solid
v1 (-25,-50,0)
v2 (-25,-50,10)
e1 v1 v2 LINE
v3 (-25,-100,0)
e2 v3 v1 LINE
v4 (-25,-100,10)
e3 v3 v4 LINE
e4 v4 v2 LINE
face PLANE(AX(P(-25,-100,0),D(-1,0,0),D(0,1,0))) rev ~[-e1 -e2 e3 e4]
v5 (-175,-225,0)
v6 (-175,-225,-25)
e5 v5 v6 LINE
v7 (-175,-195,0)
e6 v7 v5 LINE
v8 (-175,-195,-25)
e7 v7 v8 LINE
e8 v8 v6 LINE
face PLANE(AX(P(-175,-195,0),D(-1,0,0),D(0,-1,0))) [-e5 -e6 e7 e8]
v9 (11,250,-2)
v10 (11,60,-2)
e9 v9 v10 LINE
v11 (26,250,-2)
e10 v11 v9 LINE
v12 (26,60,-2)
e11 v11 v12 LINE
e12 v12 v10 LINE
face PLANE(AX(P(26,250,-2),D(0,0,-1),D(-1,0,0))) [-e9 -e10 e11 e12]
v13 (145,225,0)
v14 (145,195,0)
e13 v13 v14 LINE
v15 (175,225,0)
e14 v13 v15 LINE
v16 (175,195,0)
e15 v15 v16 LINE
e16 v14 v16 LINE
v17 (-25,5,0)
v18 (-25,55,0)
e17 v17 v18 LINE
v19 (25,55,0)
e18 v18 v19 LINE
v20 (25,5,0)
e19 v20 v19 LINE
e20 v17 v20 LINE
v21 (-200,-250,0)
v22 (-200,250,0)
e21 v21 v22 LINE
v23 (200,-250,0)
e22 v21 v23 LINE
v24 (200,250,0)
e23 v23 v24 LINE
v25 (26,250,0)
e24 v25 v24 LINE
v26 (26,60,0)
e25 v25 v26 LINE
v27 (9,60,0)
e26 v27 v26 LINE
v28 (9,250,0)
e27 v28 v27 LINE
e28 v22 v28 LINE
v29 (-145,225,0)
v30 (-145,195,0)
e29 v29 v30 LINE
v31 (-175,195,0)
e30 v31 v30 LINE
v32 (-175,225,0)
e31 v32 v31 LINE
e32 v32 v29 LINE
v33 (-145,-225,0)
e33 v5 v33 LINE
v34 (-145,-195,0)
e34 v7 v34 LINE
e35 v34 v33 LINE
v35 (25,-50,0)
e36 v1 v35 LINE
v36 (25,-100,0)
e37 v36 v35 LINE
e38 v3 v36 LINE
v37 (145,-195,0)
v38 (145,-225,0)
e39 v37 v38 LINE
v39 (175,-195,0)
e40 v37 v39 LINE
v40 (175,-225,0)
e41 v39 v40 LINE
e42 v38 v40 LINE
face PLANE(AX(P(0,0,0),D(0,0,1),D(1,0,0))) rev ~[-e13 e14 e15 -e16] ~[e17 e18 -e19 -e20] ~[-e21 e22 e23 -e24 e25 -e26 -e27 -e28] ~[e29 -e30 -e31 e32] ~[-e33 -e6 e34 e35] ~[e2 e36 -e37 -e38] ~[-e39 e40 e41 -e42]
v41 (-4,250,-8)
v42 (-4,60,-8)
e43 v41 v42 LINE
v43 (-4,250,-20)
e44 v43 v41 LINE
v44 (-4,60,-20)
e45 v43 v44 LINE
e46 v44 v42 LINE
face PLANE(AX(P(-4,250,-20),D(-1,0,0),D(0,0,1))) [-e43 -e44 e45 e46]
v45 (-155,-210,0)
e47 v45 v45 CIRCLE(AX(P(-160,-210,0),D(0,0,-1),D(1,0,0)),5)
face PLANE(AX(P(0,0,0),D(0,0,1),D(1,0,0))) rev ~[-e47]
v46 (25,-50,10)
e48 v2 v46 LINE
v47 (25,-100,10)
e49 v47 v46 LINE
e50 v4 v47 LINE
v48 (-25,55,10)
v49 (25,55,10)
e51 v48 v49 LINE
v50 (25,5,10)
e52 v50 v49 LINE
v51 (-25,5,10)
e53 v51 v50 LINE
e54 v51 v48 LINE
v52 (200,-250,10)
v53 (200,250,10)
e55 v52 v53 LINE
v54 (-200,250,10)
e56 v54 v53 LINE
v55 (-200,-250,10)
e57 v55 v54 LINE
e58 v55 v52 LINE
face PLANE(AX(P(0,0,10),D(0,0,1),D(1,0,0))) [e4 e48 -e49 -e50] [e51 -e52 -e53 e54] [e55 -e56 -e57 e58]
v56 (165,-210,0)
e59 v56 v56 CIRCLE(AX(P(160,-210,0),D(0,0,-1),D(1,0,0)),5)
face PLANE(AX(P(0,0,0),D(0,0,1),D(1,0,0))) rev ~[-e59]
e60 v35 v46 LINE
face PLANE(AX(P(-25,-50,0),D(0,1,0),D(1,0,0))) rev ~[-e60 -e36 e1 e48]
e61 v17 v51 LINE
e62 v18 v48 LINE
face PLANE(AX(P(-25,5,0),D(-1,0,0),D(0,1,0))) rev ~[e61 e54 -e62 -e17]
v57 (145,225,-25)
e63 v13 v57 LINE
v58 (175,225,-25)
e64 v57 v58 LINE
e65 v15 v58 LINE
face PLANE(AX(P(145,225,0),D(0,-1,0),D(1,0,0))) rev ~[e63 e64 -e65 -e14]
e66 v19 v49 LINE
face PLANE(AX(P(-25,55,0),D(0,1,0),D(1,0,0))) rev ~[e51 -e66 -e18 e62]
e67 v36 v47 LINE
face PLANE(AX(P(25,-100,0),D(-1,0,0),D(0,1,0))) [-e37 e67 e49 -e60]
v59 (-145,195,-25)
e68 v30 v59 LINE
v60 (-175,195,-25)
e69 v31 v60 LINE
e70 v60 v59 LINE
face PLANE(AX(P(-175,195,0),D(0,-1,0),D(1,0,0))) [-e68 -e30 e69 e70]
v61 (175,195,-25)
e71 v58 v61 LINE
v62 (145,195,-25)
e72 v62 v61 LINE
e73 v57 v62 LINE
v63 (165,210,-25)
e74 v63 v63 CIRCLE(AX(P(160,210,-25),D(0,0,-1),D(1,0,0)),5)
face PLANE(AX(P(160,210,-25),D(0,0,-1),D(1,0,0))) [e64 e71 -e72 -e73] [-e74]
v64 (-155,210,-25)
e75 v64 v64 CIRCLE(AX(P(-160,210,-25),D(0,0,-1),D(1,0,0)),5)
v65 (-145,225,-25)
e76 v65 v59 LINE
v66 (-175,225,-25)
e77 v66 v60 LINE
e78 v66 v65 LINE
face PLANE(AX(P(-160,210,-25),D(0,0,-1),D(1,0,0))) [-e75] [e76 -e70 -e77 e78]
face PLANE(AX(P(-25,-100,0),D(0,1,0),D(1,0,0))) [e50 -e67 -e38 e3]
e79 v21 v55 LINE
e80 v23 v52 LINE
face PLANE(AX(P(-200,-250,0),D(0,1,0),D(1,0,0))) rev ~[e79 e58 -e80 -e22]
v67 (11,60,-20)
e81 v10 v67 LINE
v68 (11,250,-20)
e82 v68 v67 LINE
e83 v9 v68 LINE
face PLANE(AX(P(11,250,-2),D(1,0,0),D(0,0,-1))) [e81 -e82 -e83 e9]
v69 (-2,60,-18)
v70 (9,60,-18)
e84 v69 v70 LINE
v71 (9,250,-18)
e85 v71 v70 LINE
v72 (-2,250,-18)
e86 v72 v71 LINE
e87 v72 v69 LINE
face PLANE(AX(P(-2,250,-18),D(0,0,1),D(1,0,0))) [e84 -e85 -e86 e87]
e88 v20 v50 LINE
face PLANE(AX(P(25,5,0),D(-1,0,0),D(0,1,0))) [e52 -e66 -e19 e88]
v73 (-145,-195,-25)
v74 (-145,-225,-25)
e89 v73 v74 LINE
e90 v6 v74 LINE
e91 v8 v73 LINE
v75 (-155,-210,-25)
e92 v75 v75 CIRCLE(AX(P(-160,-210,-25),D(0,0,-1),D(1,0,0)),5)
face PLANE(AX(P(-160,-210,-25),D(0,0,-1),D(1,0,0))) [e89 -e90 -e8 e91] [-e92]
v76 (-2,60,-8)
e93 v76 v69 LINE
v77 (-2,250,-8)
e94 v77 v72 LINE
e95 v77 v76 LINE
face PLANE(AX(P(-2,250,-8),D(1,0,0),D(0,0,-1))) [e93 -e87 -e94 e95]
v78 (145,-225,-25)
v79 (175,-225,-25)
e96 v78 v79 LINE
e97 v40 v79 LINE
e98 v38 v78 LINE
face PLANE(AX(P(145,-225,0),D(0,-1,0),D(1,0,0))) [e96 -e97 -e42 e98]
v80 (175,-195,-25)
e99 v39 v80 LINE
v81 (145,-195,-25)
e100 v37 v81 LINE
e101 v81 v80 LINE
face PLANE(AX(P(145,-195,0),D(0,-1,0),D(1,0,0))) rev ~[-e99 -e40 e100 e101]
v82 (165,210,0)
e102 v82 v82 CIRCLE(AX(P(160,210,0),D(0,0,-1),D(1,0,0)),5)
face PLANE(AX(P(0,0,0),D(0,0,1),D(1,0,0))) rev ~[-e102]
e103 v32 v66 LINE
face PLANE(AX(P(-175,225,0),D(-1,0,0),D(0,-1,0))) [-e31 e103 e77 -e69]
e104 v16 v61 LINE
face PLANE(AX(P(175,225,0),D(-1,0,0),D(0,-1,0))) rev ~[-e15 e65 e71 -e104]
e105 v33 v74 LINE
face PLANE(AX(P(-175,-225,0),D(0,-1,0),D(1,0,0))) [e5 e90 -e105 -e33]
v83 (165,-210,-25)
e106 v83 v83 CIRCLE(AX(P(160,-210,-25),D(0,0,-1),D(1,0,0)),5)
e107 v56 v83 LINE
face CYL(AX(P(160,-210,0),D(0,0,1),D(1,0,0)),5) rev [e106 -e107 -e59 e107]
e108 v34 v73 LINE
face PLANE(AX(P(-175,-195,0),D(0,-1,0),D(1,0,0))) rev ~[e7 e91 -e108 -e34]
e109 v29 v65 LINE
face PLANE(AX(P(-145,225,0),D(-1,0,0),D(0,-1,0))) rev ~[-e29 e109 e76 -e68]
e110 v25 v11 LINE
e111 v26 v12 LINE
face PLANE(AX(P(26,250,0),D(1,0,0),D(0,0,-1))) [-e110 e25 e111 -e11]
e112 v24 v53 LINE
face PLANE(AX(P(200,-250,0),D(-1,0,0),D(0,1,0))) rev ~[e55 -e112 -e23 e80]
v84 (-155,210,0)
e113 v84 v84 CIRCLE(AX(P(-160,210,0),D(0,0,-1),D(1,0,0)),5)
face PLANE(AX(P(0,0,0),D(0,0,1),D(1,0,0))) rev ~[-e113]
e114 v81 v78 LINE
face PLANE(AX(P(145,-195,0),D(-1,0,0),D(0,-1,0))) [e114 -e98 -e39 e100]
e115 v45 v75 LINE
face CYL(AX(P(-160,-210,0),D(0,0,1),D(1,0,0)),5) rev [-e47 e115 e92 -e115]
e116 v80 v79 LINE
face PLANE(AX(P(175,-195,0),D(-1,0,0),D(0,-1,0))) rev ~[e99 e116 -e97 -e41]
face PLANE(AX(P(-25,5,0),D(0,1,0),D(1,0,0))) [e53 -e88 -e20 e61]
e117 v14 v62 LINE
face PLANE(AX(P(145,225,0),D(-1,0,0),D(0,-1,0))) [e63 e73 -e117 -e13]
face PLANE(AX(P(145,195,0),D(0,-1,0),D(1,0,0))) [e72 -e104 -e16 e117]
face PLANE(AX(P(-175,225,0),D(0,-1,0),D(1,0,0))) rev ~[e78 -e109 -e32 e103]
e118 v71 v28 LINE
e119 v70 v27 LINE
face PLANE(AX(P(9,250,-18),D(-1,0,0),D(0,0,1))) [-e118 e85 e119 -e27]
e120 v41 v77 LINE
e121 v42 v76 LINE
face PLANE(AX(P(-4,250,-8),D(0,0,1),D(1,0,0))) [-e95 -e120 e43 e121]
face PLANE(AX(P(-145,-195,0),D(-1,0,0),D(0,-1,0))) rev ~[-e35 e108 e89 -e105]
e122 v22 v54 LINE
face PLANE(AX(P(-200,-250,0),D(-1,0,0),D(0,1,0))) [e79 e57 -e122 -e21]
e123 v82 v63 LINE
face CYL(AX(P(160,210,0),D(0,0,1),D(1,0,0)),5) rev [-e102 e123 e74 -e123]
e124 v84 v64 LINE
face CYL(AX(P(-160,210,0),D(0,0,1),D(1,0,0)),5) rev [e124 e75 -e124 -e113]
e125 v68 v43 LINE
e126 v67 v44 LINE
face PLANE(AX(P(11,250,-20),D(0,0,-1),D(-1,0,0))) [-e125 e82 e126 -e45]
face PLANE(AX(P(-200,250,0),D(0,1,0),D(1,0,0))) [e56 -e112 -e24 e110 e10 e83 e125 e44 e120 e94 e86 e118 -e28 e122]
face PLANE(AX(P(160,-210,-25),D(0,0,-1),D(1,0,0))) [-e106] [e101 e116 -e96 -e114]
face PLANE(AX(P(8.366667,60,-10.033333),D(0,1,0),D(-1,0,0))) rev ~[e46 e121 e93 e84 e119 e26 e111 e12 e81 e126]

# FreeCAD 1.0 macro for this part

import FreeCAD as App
import Part
import Sketcher
Q = App.Units.Quantity

doc = App.newDocument("Part")
params = doc.addObject("Spreadsheet::Sheet", "Params")
for row, (alias, value) in enumerate([
    ("sketch1_width", "400 mm"),
    ("sketch1_width2", "50 mm"),
    ("sketch1_height", "500 mm"),
    ("pad1_length", "10 mm"),
    ("sketch2_diameter", "10 mm"),
    ("sketch2_width", "30 mm"),
    ("pad2_length", "25 mm"),
    ("sketch3_width", "2 mm"),
    ("sketch3_width2", "11 mm"),
    ("sketch3_width3", "17 mm"),
    ("sketch3_height", "12 mm"),
    ("sketch3_height2", "18 mm"),
    ("pad3_length", "190 mm"),
], start=1):
    params.set(f"A{row}", alias)
    params.set(f"B{row}", "=" + value)
    params.setAlias(f"B{row}", alias)

body = doc.addObject("PartDesign::Body", "Body")

sketch1 = body.newObject("Sketcher::SketchObject", "Sketch")
sketch1.AttachmentSupport = (doc.getObject("XY_Plane"), [""])
sketch1.MapMode = "FlatFace"
sketch1.addGeometry([
    Part.LineSegment(App.Vector(-200, 250, 0), App.Vector(-200, -250, 0)),
    Part.LineSegment(App.Vector(-200, -250, 0), App.Vector(200, -250, 0)),
    Part.LineSegment(App.Vector(200, -250, 0), App.Vector(200, 250, 0)),
    Part.LineSegment(App.Vector(200, 250, 0), App.Vector(-200, 250, 0)),
    Part.LineSegment(App.Vector(25, -100, 0), App.Vector(-25, -100, 0)),
    Part.LineSegment(App.Vector(-25, -100, 0), App.Vector(-25, -50, 0)),
    Part.LineSegment(App.Vector(-25, -50, 0), App.Vector(25, -50, 0)),
    Part.LineSegment(App.Vector(25, -50, 0), App.Vector(25, -100, 0)),
    Part.LineSegment(App.Vector(25, 5, 0), App.Vector(-25, 5, 0)),
    Part.LineSegment(App.Vector(-25, 5, 0), App.Vector(-25, 55, 0)),
    Part.LineSegment(App.Vector(-25, 55, 0), App.Vector(25, 55, 0)),
    Part.LineSegment(App.Vector(25, 55, 0), App.Vector(25, 5, 0)),
], False)
sketch1.addConstraint([
    Sketcher.Constraint("Coincident", 0, 2, 1, 1),
    Sketcher.Constraint("Coincident", 1, 2, 2, 1),
    Sketcher.Constraint("Coincident", 2, 2, 3, 1),
    Sketcher.Constraint("Coincident", 3, 2, 0, 1),
    Sketcher.Constraint("Coincident", 4, 2, 5, 1),
    Sketcher.Constraint("Coincident", 5, 2, 6, 1),
    Sketcher.Constraint("Coincident", 6, 2, 7, 1),
    Sketcher.Constraint("Coincident", 7, 2, 4, 1),
    Sketcher.Constraint("Coincident", 8, 2, 9, 1),
    Sketcher.Constraint("Coincident", 9, 2, 10, 1),
    Sketcher.Constraint("Coincident", 10, 2, 11, 1),
    Sketcher.Constraint("Coincident", 11, 2, 8, 1),
    Sketcher.Constraint("Vertical", 0),
    Sketcher.Constraint("Horizontal", 1),
    Sketcher.Constraint("Vertical", 2),
    Sketcher.Constraint("Horizontal", 3),
    Sketcher.Constraint("Horizontal", 4),
    Sketcher.Constraint("Vertical", 5),
    Sketcher.Constraint("Horizontal", 6),
    Sketcher.Constraint("Vertical", 7),
    Sketcher.Constraint("Horizontal", 8),
    Sketcher.Constraint("Vertical", 9),
    Sketcher.Constraint("Horizontal", 10),
    Sketcher.Constraint("Vertical", 11),
    Sketcher.Constraint("Symmetric", 0, 2, 2, 2, -1, 1),
    Sketcher.Constraint("Vertical", 5, 2, 8, 2),
    Sketcher.Constraint("Vertical", 7, 2, 10, 2),
    Sketcher.Constraint("Equal", 10, 5),
    Sketcher.Constraint("Equal", 7, 9),
    Sketcher.Constraint("DistanceX", 1, 1, 1, 2, Q("400 mm")),
    Sketcher.Constraint("DistanceX", 4, 2, 4, 1, Q("50 mm")),
    Sketcher.Constraint("DistanceY", 0, 2, 0, 1, Q("500 mm")),
    Sketcher.Constraint("DistanceX", 4, 2, -1, 1, Q("25 mm")),
    Sketcher.Constraint("DistanceY", 4, 2, -1, 1, Q("100 mm")),
    Sketcher.Constraint("DistanceY", -1, 1, 8, 2, Q("5 mm")),
])
sketch1.setExpression("Constraints[29]", "Params.sketch1_width")
sketch1.setExpression("Constraints[30]", "Params.sketch1_width2")
sketch1.setExpression("Constraints[31]", "Params.sketch1_height")
pad1 = body.newObject("PartDesign::Pad", "Pad")
pad1.Profile = sketch1
pad1.setExpression("Length", "Params.pad1_length")

sketch2 = body.newObject("Sketcher::SketchObject", "Sketch001")
sketch2.AttachmentSupport = (doc.getObject("XY_Plane"), [""])
sketch2.MapMode = "FlatFace"
sketch2.addGeometry([
    Part.LineSegment(App.Vector(145, -225, 0), App.Vector(145, -195, 0)),
    Part.LineSegment(App.Vector(145, -195, 0), App.Vector(175, -195, 0)),
    Part.LineSegment(App.Vector(175, -195, 0), App.Vector(175, -225, 0)),
    Part.LineSegment(App.Vector(175, -225, 0), App.Vector(145, -225, 0)),
    Part.Circle(App.Vector(160, -210, 0), App.Vector(0, 0, 1), 5),
    Part.LineSegment(App.Vector(145, 195, 0), App.Vector(145, 225, 0)),
    Part.LineSegment(App.Vector(145, 225, 0), App.Vector(175, 225, 0)),
    Part.LineSegment(App.Vector(175, 225, 0), App.Vector(175, 195, 0)),
    Part.LineSegment(App.Vector(175, 195, 0), App.Vector(145, 195, 0)),
    Part.Circle(App.Vector(160, 210, 0), App.Vector(0, 0, 1), 5),
    Part.LineSegment(App.Vector(-175, 195, 0), App.Vector(-175, 225, 0)),
    Part.LineSegment(App.Vector(-175, 225, 0), App.Vector(-145, 225, 0)),
    Part.LineSegment(App.Vector(-145, 225, 0), App.Vector(-145, 195, 0)),
    Part.LineSegment(App.Vector(-145, 195, 0), App.Vector(-175, 195, 0)),
    Part.Circle(App.Vector(-160, 210, 0), App.Vector(0, 0, 1), 5),
    Part.LineSegment(App.Vector(-175, -225, 0), App.Vector(-175, -195, 0)),
    Part.LineSegment(App.Vector(-175, -195, 0), App.Vector(-145, -195, 0)),
    Part.LineSegment(App.Vector(-145, -195, 0), App.Vector(-145, -225, 0)),
    Part.LineSegment(App.Vector(-145, -225, 0), App.Vector(-175, -225, 0)),
    Part.Circle(App.Vector(-160, -210, 0), App.Vector(0, 0, 1), 5),
], False)
sketch2.addConstraint([
    Sketcher.Constraint("Coincident", 0, 2, 1, 1),
    Sketcher.Constraint("Coincident", 1, 2, 2, 1),
    Sketcher.Constraint("Coincident", 2, 2, 3, 1),
    Sketcher.Constraint("Coincident", 3, 2, 0, 1),
    Sketcher.Constraint("Coincident", 5, 2, 6, 1),
    Sketcher.Constraint("Coincident", 6, 2, 7, 1),
    Sketcher.Constraint("Coincident", 7, 2, 8, 1),
    Sketcher.Constraint("Coincident", 8, 2, 5, 1),
    Sketcher.Constraint("Coincident", 10, 2, 11, 1),
    Sketcher.Constraint("Coincident", 11, 2, 12, 1),
    Sketcher.Constraint("Coincident", 12, 2, 13, 1),
    Sketcher.Constraint("Coincident", 13, 2, 10, 1),
    Sketcher.Constraint("Coincident", 15, 2, 16, 1),
    Sketcher.Constraint("Coincident", 16, 2, 17, 1),
    Sketcher.Constraint("Coincident", 17, 2, 18, 1),
    Sketcher.Constraint("Coincident", 18, 2, 15, 1),
    Sketcher.Constraint("Vertical", 0),
    Sketcher.Constraint("Horizontal", 1),
    Sketcher.Constraint("Vertical", 2),
    Sketcher.Constraint("Horizontal", 3),
    Sketcher.Constraint("Vertical", 5),
    Sketcher.Constraint("Horizontal", 6),
    Sketcher.Constraint("Vertical", 7),
    Sketcher.Constraint("Horizontal", 8),
    Sketcher.Constraint("Vertical", 10),
    Sketcher.Constraint("Horizontal", 11),
    Sketcher.Constraint("Vertical", 12),
    Sketcher.Constraint("Horizontal", 13),
    Sketcher.Constraint("Vertical", 15),
    Sketcher.Constraint("Horizontal", 16),
    Sketcher.Constraint("Vertical", 17),
    Sketcher.Constraint("Horizontal", 18),
    Sketcher.Constraint("Equal", 4, 9),
    Sketcher.Constraint("Equal", 9, 14),
    Sketcher.Constraint("Equal", 14, 19),
    Sketcher.Constraint("Symmetric", 4, 3, 14, 3, -1, 1),
    Sketcher.Constraint("Symmetric", 9, 3, 19, 3, -1, 1),
    Sketcher.Constraint("Symmetric", 2, 2, 10, 2, -1, 1),
    Sketcher.Constraint("Symmetric", 0, 2, 12, 2, -1, 1),
    Sketcher.Constraint("Symmetric", 7, 2, 15, 2, -1, 1),
    Sketcher.Constraint("Symmetric", 5, 2, 17, 2, -1, 1),
    Sketcher.Constraint("Symmetric", 9, 3, 14, 3, -2),
    Sketcher.Constraint("Symmetric", 6, 2, 10, 2, -2),
    Sketcher.Constraint("Symmetric", 8, 2, 12, 2, -2),
    Sketcher.Constraint("Equal", 18, 0),
    Sketcher.Constraint("Diameter", 4, Q("10 mm")),
    Sketcher.Constraint("DistanceX", 1, 1, 1, 2, Q("30 mm")),
    Sketcher.Constraint("DistanceX", -1, 1, 4, 3, Q("160 mm")),
    Sketcher.Constraint("DistanceY", 4, 3, -1, 1, Q("210 mm")),
    Sketcher.Constraint("DistanceX", -1, 1, 0, 2, Q("145 mm")),
    Sketcher.Constraint("DistanceY", 0, 2, -1, 1, Q("195 mm")),
])
sketch2.setExpression("Constraints[45]", "Params.sketch2_diameter")
sketch2.setExpression("Constraints[46]", "Params.sketch2_width")
pad2 = body.newObject("PartDesign::Pad", "Pad001")
pad2.Profile = sketch2
pad2.setExpression("Length", "Params.pad2_length")
pad2.Reversed = True

sketch3 = body.newObject("Sketcher::SketchObject", "Sketch002")
sketch3.AttachmentSupport = (doc.getObject("XZ_Plane"), [""])
sketch3.MapMode = "FlatFace"
sketch3.AttachmentOffset = App.Placement(App.Vector(0, 0, -250), App.Rotation())
sketch3.addGeometry([
    Part.LineSegment(App.Vector(-4, -20, 0), App.Vector(-4, -8, 0)),
    Part.LineSegment(App.Vector(-4, -8, 0), App.Vector(-2, -8, 0)),
    Part.LineSegment(App.Vector(-2, -8, 0), App.Vector(-2, -18, 0)),
    Part.LineSegment(App.Vector(-2, -18, 0), App.Vector(9, -18, 0)),
    Part.LineSegment(App.Vector(9, -18, 0), App.Vector(9, 0, 0)),
    Part.LineSegment(App.Vector(9, 0, 0), App.Vector(26, 0, 0)),
    Part.LineSegment(App.Vector(26, 0, 0), App.Vector(26, -2, 0)),
    Part.LineSegment(App.Vector(26, -2, 0), App.Vector(11, -2, 0)),
    Part.LineSegment(App.Vector(11, -2, 0), App.Vector(11, -20, 0)),
    Part.LineSegment(App.Vector(11, -20, 0), App.Vector(-4, -20, 0)),
], False)
sketch3.addConstraint([
    Sketcher.Constraint("Coincident", 0, 2, 1, 1),
    Sketcher.Constraint("Coincident", 1, 2, 2, 1),
    Sketcher.Constraint("Coincident", 2, 2, 3, 1),
    Sketcher.Constraint("Coincident", 3, 2, 4, 1),
    Sketcher.Constraint("Coincident", 4, 2, 5, 1),
    Sketcher.Constraint("Coincident", 5, 2, 6, 1),
    Sketcher.Constraint("Coincident", 6, 2, 7, 1),
    Sketcher.Constraint("Coincident", 7, 2, 8, 1),
    Sketcher.Constraint("Coincident", 8, 2, 9, 1),
    Sketcher.Constraint("Coincident", 9, 2, 0, 1),
    Sketcher.Constraint("Vertical", 0),
    Sketcher.Constraint("Horizontal", 1),
    Sketcher.Constraint("Vertical", 2),
    Sketcher.Constraint("Horizontal", 3),
    Sketcher.Constraint("Vertical", 4),
    Sketcher.Constraint("Horizontal", 5),
    Sketcher.Constraint("Vertical", 6),
    Sketcher.Constraint("Horizontal", 7),
    Sketcher.Constraint("Vertical", 8),
    Sketcher.Constraint("Horizontal", 9),
    Sketcher.Constraint("PointOnObject", 4, 2, -1),
    Sketcher.Constraint("Equal", 7, 9),
    Sketcher.Constraint("Equal", 1, 6),
    Sketcher.Constraint("Equal", 4, 8),
    Sketcher.Constraint("DistanceX", 1, 1, 1, 2, Q("2 mm")),
    Sketcher.Constraint("DistanceX", 3, 1, 3, 2, Q("11 mm")),
    Sketcher.Constraint("DistanceX", 5, 1, 5, 2, Q("17 mm")),
    Sketcher.Constraint("DistanceY", 0, 1, 0, 2, Q("12 mm")),
    Sketcher.Constraint("DistanceY", 4, 1, 4, 2, Q("18 mm")),
    Sketcher.Constraint("DistanceX", 0, 2, -1, 1, Q("4 mm")),
])
sketch3.setExpression("Constraints[24]", "Params.sketch3_width")
sketch3.setExpression("Constraints[25]", "Params.sketch3_width2")
sketch3.setExpression("Constraints[26]", "Params.sketch3_width3")
sketch3.setExpression("Constraints[27]", "Params.sketch3_height")
sketch3.setExpression("Constraints[28]", "Params.sketch3_height2")
pad3 = body.newObject("PartDesign::Pad", "Pad002")
pad3.Profile = sketch3
pad3.setExpression("Length", "Params.pad3_length")

doc.recompute()
